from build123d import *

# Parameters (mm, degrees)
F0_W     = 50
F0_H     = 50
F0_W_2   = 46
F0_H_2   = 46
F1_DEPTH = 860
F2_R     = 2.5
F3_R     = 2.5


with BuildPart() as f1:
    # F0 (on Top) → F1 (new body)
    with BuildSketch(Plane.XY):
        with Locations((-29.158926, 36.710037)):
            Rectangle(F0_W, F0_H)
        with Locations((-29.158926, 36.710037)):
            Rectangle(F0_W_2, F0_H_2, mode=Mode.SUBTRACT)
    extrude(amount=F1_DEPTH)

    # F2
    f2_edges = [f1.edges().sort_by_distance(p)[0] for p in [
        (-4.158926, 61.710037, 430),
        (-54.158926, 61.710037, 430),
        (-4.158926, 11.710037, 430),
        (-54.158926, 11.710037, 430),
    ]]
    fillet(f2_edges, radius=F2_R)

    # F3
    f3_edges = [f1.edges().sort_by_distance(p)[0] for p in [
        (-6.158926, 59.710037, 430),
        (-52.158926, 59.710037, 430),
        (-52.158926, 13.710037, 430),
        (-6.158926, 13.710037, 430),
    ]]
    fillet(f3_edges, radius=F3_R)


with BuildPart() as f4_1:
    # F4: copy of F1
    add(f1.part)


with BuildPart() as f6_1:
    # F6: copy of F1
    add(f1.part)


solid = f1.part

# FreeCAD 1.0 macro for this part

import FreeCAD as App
import Part
import Sketcher
from FreeCAD import Vector
Q = App.Units.Quantity


def edges_at(feature, points):
    """Names of the edges that pass closest to the given points."""
    edges = feature.Shape.Edges
    near = lambda p: min(range(len(edges)), key=lambda i: edges[i].distToShape(Part.Vertex(*p))[0])
    return sorted({f"Edge{near(p) + 1}" for p in points})


def add_polygon(sketch, points):
    """Adds a closed chain of lines whose ends are joined by coincident constraints."""
    first, n = sketch.GeometryCount, len(points)
    for a, b in zip(points, points[1:] + points[:1]):
        sketch.addGeometry(Part.LineSegment(App.Vector(*a, 0), App.Vector(*b, 0)), False)
    for i in range(n):
        sketch.addConstraint(Sketcher.Constraint("Coincident", first + i, 2, first + (i + 1) % n, 1))

doc = App.newDocument("Part")
body = doc.addObject("PartDesign::Body", "Body")

# Sketch on XY plane
sketch1 = body.newObject("Sketcher::SketchObject", "Sketch")
sketch1.AttachmentSupport = (doc.getObject("XY_Plane"), [""])
sketch1.MapMode = "FlatFace"
add_polygon(sketch1, [(-54, 62), (-54, 12), (-4, 12), (-4, 62)])  # lines 0-3
add_polygon(sketch1, [(-6, 14), (-52, 14), (-52, 60), (-6, 60)])  # lines 4-7
sketch1.addConstraint([
    Sketcher.Constraint("Vertical", 0),
    Sketcher.Constraint("Horizontal", 1),
    Sketcher.Constraint("Vertical", 2),
    Sketcher.Constraint("Horizontal", 3),
    Sketcher.Constraint("Horizontal", 4),
    Sketcher.Constraint("Vertical", 5),
    Sketcher.Constraint("Horizontal", 6),
    Sketcher.Constraint("Vertical", 7),
    Sketcher.Constraint("Equal", 3, 0),
    Sketcher.Constraint("Equal", 6, 5),
    Sketcher.Constraint("DistanceX", 1, 1, 1, 2, Q("50 mm")),
    Sketcher.Constraint("DistanceX", 4, 2, 4, 1, Q("46 mm")),
    Sketcher.Constraint("DistanceX", 0, 2, 4, 2, Q("2 mm")),
    Sketcher.Constraint("DistanceY", 0, 2, 4, 2, Q("2 mm")),
    Sketcher.Constraint("DistanceX", 0, 2, -1, 1, Q("54.158926 mm")),
    Sketcher.Constraint("DistanceY", -1, 1, 0, 2, Q("11.710037 mm")),
])
pad1 = body.newObject("PartDesign::Pad", "Pad")
pad1.Profile = sketch1
pad1.Length = 860
doc.recompute()

fillet = body.newObject("PartDesign::Fillet", "Fillet")
fillet.Base = (pad1, edges_at(pad1, [
    (-4.159, 61.71, 430),
    (-54.159, 61.71, 430),
    (-4.159, 11.71, 430),
    (-54.159, 11.71, 430),
]))
fillet.Radius = 2.5
doc.recompute()

fillet2 = body.newObject("PartDesign::Fillet", "Fillet001")
fillet2.Base = (fillet, edges_at(fillet, [
    (-6.159, 59.71, 430),
    (-52.159, 59.71, 430),
    (-52.159, 13.71, 430),
    (-6.159, 13.71, 430),
]))
fillet2.Radius = 2.5
body2 = doc.addObject("PartDesign::Body", "Body001")
doc.recompute()

body2.BaseFeature = body
doc.recompute()
body3 = doc.addObject("PartDesign::Body", "Body002")
doc.recompute()

body3.BaseFeature = body
doc.recompute()
body.Visibility = False
body2.Visibility = False

doc.recompute()
